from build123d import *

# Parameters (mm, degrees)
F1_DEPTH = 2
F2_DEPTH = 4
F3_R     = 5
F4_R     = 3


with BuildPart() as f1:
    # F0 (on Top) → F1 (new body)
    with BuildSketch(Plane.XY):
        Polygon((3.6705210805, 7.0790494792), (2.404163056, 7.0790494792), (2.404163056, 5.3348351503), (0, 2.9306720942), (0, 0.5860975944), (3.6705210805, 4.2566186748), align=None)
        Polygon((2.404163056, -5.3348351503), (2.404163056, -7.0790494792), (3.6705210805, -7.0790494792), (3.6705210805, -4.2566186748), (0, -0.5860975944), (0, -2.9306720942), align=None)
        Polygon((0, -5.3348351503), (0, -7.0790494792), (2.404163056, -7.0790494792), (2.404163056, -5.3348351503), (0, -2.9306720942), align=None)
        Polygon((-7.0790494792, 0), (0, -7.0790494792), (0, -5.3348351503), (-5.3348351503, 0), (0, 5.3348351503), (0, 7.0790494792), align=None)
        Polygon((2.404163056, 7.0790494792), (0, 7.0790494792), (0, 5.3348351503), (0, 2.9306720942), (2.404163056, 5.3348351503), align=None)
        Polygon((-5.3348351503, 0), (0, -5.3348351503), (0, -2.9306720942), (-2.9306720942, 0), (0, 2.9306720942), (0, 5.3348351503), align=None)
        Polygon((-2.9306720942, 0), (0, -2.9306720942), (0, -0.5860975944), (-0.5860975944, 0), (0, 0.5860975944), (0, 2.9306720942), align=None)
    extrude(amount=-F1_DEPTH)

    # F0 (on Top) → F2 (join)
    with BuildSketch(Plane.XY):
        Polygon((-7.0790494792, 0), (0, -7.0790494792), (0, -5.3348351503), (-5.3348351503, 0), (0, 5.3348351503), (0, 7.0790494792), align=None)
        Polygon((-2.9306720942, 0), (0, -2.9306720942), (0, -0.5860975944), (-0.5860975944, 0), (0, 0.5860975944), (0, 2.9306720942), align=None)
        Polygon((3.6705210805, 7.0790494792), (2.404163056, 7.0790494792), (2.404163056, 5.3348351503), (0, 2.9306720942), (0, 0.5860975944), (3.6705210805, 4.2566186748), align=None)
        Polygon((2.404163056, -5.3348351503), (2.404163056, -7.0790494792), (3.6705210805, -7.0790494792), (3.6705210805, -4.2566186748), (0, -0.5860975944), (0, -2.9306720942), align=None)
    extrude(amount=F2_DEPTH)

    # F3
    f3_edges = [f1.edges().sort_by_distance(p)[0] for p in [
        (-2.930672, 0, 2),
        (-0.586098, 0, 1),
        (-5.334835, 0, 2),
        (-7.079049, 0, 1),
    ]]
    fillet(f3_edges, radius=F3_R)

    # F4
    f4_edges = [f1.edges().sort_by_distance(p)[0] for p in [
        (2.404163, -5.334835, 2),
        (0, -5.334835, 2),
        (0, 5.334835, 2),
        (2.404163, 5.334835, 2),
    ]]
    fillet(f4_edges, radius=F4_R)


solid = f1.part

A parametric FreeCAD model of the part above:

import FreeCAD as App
import Part
import Sketcher
from FreeCAD import Vector
Q = App.Units.Quantity


def edges_at(feature, points):
    """Names of the edges that pass closest to the given points."""
    edges = feature.Shape.Edges
    near = lambda p: min(range(len(edges)), key=lambda i: edges[i].distToShape(Part.Vertex(*p))[0])
    return sorted({f"Edge{near(p) + 1}" for p in points})


def add_polygon(sketch, points):
    """Adds a closed chain of lines whose ends are joined by coincident constraints."""
    first, n = sketch.GeometryCount, len(points)
    for a, b in zip(points, points[1:] + points[:1]):
        sketch.addGeometry(Part.LineSegment(App.Vector(*a, 0), App.Vector(*b, 0)), False)
    for i in range(n):
        sketch.addConstraint(Sketcher.Constraint("Coincident", first + i, 2, first + (i + 1) % n, 1))

doc = App.newDocument("Part")
params = doc.addObject("Spreadsheet::Sheet", "Params")
for row, (alias, value) in enumerate([
    ("pad1_length", "2 mm"),
    ("sketch2_length", "3.4 mm"),
    ("pad2_length", "4 mm"),
    ("fillet_radius", "5 mm"),
    ("fillet2_radius", "3 mm"),
], start=1):
    params.set(f"A{row}", alias)
    params.set(f"B{row}", "=" + value)
    params.setAlias(f"B{row}", alias)

body = doc.addObject("PartDesign::Body", "Body")

# Sketch on XY plane
sketch1 = doc.addObject("Sketcher::SketchObject", "Sketch")
body.addObject(sketch1)
sketch1.AttachmentSupport = (doc.XY_Plane, [""])
sketch1.MapMode = "FlatFace"
add_polygon(sketch1, [(3.7, 7.1), (0, 7.1), (-7.1, 0), (0, -7.1), (3.7, -7.1), (3.7, -4.3), (0, -0.6), (-0.6, 0), (0, 0.6), (3.7, 4.3)])  # lines 0-9
sketch1.addConstraint([
    Sketcher.Constraint("Horizontal", 0),
    Sketcher.Constraint("Horizontal", 3),
    Sketcher.Constraint("Vertical", 4),
    Sketcher.Constraint("Vertical", 9),
    Sketcher.Constraint("Symmetric", 0, 2, 2, 2, -1, 1),
    Sketcher.Constraint("Symmetric", 5, 2, 7, 2, -1, 1),
    Sketcher.Constraint("Symmetric", 4, 2, 8, 2, -1),
    Sketcher.Constraint("PointOnObject", 0, 2, -2),
    Sketcher.Constraint("PointOnObject", 1, 2, -1),
    Sketcher.Constraint("PointOnObject", 5, 2, -2),
    Sketcher.Constraint("PointOnObject", 6, 2, -1),
    Sketcher.Constraint("Perpendicular", 1, 2),
    Sketcher.Constraint("Parallel", 2, 5),
    Sketcher.Constraint("Parallel", 5, 6),
    Sketcher.Constraint("Distance", 5, Q("5.190901 mm")),
    Sketcher.Constraint("DistanceY", 4, 1, 4, 2, Q("2.822431 mm")),
    Sketcher.Constraint("DistanceY", 2, 2, 0, 2, Q("14.158099 mm")),
])
pad1 = doc.addObject("PartDesign::Pad", "Pad")
body.addObject(pad1)
pad1.Profile = sketch1
pad1.setExpression("Length", "Params.pad1_length")
pad1.Reversed = True

# Sketch on XY plane
sketch2 = doc.addObject("Sketcher::SketchObject", "Sketch001")
body.addObject(sketch2)
sketch2.AttachmentSupport = (doc.XY_Plane, [""])
sketch2.MapMode = "FlatFace"
add_polygon(sketch2, [(-7.1, 0), (0, -7.1), (0, -5.3), (-5.3, 0), (0, 5.3), (0, 7.1)])  # lines 0-5
add_polygon(sketch2, [(-2.9, 0), (0, -2.9), (2.4, -5.3), (2.4, -7.1), (3.7, -7.1), (3.7, -4.3), (0, -0.6), (-0.6, 0), (0, 0.6), (3.7, 4.3), (3.7, 7.1), (2.4, 7.1), (2.4, 5.3), (0, 2.9)])  # lines 6-19
sketch2.addConstraint([
    Sketcher.Constraint("Vertical", 1),
    Sketcher.Constraint("Vertical", 4),
    Sketcher.Constraint("Vertical", 8),
    Sketcher.Constraint("Horizontal", 9),
    Sketcher.Constraint("Vertical", 10),
    Sketcher.Constraint("Vertical", 15),
    Sketcher.Constraint("Horizontal", 16),
    Sketcher.Constraint("Vertical", 17),
    Sketcher.Constraint("Symmetric", 1, 2, 3, 2, -1, 1),
    Sketcher.Constraint("Symmetric", 11, 2, 13, 2, -1, 1),
    Sketcher.Constraint("Symmetric", 6, 2, 18, 2, -1, 1),
    Sketcher.Constraint("Symmetric", 0, 2, 4, 2, -1),
    Sketcher.Constraint("Symmetric", 10, 2, 14, 2, -1),
    Sketcher.Constraint("Symmetric", 8, 2, 16, 2, -1),
    Sketcher.Constraint("PointOnObject", 2, 2, -1),
    Sketcher.Constraint("PointOnObject", 5, 2, -1),
    Sketcher.Constraint("PointOnObject", 6, 2, -2),
    Sketcher.Constraint("PointOnObject", 11, 2, -2),
    Sketcher.Constraint("PointOnObject", 12, 2, -1),
    Sketcher.Constraint("PointOnObject", 19, 2, -1),
    Sketcher.Constraint("Parallel", 0, 2),
    Sketcher.Constraint("Perpendicular", 2, 3),
    Sketcher.Constraint("Perpendicular", 5, 6),
    Sketcher.Constraint("Parallel", 6, 7),
    Sketcher.Constraint("Parallel", 7, 11),
    Sketcher.Constraint("Parallel", 11, 12),
    Sketcher.Constraint("Parallel", 14, 18),
    Sketcher.Constraint("Horizontal", 1, 2, 7, 2),
    Sketcher.Constraint("Horizontal", 0, 2, 8, 2),
    Sketcher.Constraint("Distance", 7, Q("3.4 mm")),
    Sketcher.Constraint("DistanceX", 2, 2, 7, 2, Q("7.738998 mm")),
    Sketcher.Constraint("Distance", 11, Q("5.190901 mm")),
    Sketcher.Constraint("DistanceY", 10, 1, 10, 2, Q("2.822431 mm")),
    Sketcher.Constraint("DistanceY", 0, 2, 4, 2, Q("14.158099 mm")),
])
sketch2.setExpression("Constraints[49]", "Params.sketch2_length")
pad2 = doc.addObject("PartDesign::Pad", "Pad001")
body.addObject(pad2)
pad2.Profile = sketch2
pad2.setExpression("Length", "Params.pad2_length")
doc.recompute()

fillet = doc.addObject("PartDesign::Fillet", "Fillet")
body.addObject(fillet)
fillet.Base = (pad2, edges_at(pad2, [
    (-2.931, 0, 2),
    (-0.586, 0, 1),
    (-5.335, 0, 2),
    (-7.079, 0, 1),
]))
fillet.setExpression("Radius", "Params.fillet_radius")
doc.recompute()

fillet2 = doc.addObject("PartDesign::Fillet", "Fillet001")
body.addObject(fillet2)
fillet2.Base = (fillet, edges_at(fillet, [
    (2.404, -5.335, 2),
    (0, -5.335, 2),
    (0, 5.335, 2),
    (2.404, 5.335, 2),
]))
fillet2.setExpression("Radius", "Params.fillet2_radius")

doc.recompute()
